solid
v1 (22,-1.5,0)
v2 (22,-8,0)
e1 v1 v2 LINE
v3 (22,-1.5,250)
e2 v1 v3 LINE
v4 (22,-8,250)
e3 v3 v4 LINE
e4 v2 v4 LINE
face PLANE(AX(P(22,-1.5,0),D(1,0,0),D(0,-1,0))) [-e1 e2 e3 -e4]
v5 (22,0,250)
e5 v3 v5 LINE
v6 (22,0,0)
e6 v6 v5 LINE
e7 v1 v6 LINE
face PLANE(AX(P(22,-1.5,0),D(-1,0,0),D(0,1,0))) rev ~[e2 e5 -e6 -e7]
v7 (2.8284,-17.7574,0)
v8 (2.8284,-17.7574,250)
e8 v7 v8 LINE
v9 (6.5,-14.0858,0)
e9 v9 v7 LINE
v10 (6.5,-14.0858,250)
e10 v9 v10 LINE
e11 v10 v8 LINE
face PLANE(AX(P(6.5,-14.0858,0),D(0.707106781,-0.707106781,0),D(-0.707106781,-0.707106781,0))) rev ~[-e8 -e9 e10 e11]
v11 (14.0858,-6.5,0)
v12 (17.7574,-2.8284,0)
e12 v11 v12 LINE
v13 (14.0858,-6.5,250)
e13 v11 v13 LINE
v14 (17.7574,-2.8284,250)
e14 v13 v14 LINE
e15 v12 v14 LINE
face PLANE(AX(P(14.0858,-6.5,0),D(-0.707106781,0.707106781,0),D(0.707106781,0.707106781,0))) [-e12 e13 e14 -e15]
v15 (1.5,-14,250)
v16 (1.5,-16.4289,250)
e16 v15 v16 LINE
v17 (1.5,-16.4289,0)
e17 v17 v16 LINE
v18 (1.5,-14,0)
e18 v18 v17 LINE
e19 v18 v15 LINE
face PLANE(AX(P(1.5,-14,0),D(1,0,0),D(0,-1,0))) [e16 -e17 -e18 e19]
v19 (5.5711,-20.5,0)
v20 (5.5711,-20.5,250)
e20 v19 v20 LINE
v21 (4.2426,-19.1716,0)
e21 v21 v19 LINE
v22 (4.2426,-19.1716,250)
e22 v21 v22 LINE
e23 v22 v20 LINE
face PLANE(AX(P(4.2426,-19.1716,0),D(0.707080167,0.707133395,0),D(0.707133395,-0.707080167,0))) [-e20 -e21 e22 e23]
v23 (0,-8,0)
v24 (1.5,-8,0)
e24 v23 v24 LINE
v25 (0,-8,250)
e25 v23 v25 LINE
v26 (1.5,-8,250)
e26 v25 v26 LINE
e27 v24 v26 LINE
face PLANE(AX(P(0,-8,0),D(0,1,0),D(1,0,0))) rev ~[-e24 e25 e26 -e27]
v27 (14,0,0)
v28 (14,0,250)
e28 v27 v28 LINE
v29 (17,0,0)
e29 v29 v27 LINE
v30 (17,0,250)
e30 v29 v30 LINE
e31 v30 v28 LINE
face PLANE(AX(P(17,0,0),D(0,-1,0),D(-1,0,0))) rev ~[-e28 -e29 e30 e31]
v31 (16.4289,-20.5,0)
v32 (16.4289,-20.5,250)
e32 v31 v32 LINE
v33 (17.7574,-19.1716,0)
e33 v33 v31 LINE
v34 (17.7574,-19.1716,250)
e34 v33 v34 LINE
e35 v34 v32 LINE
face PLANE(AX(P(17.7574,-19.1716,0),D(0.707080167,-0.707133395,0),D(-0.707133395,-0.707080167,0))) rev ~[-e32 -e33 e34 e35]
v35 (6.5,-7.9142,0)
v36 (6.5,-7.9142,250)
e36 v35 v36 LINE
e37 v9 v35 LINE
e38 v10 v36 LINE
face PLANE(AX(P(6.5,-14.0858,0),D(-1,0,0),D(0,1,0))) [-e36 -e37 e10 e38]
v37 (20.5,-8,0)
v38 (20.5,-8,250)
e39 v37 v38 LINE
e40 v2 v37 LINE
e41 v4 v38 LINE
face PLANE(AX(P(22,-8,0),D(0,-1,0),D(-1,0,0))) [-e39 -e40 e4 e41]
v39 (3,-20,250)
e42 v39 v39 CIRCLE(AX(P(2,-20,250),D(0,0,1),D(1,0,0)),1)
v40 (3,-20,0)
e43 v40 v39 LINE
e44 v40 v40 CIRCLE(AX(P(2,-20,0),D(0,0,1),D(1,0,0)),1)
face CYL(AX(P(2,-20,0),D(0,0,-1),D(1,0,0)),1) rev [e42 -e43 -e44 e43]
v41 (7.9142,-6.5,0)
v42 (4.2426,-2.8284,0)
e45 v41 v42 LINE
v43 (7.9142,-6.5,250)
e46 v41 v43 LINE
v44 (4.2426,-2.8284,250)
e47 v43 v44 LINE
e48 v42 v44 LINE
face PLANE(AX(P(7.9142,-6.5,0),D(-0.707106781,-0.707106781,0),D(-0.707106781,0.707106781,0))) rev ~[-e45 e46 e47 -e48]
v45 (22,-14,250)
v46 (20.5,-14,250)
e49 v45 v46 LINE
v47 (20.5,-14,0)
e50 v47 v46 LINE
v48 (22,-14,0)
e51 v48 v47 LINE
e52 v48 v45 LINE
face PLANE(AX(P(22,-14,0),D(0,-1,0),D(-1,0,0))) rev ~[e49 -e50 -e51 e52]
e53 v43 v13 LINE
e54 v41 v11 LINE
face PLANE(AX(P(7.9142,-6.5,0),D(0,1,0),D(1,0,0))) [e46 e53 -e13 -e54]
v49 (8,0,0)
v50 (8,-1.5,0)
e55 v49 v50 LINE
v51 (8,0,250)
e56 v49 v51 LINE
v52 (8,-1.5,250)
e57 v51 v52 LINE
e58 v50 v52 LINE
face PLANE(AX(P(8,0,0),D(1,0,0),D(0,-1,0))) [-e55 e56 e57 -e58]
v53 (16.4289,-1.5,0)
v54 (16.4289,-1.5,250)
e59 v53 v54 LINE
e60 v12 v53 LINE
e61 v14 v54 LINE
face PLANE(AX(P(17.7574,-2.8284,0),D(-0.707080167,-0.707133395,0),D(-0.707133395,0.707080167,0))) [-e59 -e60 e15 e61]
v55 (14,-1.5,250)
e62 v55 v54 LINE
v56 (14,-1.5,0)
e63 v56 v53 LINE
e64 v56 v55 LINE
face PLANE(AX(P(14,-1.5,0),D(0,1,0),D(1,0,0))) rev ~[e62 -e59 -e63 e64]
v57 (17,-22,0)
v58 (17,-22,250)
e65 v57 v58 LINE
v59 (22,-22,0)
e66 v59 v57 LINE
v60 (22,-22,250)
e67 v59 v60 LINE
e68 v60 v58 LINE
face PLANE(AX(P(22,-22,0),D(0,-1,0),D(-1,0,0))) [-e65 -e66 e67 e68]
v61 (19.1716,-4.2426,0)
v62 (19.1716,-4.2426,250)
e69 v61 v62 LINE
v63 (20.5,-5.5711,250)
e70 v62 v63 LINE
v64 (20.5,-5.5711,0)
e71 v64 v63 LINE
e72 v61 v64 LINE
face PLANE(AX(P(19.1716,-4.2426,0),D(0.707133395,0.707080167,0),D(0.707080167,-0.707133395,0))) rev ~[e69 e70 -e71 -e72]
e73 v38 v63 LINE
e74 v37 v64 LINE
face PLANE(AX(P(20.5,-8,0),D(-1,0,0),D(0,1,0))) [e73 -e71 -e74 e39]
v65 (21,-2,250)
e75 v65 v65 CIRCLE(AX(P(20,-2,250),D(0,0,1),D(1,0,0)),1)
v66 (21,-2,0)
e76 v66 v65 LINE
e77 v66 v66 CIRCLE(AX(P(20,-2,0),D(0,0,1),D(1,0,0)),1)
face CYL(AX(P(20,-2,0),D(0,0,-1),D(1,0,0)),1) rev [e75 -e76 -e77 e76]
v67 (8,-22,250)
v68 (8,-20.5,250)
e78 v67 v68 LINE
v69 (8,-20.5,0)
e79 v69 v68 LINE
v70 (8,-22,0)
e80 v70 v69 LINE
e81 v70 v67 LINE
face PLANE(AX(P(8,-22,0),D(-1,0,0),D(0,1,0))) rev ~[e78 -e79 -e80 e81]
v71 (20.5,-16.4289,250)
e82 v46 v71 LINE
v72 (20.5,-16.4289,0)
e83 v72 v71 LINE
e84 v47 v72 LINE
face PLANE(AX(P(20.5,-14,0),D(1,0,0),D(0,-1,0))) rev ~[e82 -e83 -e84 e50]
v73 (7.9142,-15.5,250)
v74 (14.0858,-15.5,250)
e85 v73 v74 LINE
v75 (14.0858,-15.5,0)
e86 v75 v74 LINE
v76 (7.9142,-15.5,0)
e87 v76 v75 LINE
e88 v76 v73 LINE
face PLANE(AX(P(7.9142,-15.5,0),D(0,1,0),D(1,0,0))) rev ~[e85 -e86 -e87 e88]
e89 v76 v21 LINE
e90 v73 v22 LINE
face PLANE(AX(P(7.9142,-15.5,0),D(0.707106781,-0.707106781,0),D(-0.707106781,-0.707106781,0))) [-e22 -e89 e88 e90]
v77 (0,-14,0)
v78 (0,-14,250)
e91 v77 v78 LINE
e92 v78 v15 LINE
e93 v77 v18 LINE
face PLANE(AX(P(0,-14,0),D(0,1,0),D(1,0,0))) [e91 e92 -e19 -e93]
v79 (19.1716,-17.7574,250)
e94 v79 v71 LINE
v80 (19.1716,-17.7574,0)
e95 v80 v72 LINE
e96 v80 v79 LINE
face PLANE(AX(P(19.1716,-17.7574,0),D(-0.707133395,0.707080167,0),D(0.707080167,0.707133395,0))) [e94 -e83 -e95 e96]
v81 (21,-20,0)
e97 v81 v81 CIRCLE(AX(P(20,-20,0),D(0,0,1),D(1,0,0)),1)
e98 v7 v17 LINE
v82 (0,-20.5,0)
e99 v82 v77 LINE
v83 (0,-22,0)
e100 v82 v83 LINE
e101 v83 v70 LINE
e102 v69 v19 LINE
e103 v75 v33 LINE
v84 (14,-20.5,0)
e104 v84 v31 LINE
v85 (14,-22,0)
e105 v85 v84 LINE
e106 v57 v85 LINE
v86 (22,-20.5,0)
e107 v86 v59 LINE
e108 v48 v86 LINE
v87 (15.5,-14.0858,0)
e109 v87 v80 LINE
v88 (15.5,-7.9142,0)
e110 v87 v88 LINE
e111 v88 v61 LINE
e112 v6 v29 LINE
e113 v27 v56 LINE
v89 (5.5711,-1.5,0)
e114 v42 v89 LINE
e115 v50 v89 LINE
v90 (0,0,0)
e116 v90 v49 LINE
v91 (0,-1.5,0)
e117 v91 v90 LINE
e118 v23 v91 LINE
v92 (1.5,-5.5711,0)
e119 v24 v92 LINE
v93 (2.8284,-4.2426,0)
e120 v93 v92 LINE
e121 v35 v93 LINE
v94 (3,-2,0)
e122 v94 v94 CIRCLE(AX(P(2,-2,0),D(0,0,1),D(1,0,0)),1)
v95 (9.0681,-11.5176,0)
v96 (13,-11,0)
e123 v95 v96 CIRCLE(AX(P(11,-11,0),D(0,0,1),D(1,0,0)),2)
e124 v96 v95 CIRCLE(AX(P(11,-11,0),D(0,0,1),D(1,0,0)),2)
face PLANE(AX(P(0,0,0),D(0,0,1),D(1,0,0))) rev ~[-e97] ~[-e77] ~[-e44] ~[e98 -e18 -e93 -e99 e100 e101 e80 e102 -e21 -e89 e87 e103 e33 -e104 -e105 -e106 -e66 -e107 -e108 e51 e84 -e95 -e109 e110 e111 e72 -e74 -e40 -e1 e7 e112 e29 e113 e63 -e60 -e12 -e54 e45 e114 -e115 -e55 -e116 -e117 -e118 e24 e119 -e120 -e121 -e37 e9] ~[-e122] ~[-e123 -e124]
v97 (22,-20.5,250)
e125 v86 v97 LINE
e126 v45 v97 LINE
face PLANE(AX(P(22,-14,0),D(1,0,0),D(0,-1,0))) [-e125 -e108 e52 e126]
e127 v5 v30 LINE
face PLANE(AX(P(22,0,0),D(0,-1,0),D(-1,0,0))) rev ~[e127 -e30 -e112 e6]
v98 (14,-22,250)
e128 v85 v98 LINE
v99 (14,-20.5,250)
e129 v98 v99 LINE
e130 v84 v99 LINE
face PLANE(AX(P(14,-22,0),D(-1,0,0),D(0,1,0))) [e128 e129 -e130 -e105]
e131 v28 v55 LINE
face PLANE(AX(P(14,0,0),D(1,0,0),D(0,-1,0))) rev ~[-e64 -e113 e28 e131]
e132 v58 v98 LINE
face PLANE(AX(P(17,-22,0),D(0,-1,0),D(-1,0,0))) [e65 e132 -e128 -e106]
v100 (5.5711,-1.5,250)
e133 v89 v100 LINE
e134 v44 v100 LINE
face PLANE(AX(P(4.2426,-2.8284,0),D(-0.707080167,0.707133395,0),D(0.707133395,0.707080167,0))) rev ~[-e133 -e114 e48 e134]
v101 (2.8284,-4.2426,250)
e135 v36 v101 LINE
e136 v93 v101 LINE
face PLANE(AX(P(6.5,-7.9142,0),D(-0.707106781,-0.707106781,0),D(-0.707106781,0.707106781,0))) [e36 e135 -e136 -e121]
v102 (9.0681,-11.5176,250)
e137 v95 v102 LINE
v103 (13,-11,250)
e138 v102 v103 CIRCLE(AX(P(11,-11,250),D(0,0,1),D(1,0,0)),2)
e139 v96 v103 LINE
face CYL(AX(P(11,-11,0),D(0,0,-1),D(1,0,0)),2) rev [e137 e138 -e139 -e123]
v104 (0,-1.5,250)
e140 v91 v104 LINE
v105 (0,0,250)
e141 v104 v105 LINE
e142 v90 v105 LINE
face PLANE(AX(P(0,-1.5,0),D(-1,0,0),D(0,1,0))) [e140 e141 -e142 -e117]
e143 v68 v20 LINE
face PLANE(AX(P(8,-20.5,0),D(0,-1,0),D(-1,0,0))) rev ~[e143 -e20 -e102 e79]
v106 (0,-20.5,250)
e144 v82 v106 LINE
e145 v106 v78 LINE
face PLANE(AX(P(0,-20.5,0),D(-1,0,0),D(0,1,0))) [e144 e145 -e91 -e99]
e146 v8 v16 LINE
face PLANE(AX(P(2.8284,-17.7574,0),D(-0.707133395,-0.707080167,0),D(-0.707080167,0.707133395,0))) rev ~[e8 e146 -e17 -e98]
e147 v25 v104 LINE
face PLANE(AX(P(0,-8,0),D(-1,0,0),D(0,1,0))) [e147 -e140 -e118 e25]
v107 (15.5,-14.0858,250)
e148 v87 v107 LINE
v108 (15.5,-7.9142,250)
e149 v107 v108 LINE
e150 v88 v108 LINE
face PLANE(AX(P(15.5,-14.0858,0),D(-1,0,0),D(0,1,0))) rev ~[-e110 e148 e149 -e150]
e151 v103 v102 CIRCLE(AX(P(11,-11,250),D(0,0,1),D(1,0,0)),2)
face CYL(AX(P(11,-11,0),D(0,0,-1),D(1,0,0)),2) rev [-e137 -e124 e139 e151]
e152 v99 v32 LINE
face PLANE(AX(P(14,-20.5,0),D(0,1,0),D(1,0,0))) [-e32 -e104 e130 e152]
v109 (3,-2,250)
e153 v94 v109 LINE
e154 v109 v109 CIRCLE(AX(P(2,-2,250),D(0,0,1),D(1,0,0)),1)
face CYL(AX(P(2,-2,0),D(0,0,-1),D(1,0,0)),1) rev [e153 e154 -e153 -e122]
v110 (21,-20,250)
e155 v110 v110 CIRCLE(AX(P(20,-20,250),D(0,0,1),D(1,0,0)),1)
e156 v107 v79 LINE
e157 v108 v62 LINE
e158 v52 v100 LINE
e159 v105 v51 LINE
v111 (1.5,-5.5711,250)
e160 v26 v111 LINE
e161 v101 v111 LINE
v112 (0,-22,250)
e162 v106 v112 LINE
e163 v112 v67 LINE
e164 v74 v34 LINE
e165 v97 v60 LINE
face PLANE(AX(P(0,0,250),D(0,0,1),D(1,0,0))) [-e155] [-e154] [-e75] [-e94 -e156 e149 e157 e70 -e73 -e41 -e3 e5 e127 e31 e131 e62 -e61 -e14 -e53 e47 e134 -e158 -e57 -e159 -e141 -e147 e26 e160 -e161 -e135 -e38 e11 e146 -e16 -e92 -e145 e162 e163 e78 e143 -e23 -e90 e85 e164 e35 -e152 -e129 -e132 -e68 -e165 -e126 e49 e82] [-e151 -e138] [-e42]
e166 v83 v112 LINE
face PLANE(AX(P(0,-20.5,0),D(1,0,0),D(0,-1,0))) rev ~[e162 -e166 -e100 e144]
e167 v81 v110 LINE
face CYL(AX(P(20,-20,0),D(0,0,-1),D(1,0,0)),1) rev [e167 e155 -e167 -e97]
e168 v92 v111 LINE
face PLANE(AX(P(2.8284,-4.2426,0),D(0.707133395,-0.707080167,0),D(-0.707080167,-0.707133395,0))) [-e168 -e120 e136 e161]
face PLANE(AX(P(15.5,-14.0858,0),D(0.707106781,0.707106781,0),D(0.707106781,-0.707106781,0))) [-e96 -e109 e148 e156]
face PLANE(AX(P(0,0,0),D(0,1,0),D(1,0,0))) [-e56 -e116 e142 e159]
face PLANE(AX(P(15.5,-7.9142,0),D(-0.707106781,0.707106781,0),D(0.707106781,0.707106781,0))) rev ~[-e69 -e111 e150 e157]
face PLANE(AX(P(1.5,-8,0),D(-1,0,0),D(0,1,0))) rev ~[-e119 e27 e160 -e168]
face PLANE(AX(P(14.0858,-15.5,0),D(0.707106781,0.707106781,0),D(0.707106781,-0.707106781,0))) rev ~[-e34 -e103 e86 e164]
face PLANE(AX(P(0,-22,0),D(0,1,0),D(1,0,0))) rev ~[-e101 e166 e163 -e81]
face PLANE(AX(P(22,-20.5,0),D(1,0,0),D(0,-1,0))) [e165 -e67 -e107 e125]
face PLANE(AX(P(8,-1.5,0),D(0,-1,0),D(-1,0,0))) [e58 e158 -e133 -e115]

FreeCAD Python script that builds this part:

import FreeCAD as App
import Part
import Sketcher
Q = App.Units.Quantity


def add_polygon(sketch, points):
    """Adds a closed chain of lines whose ends are joined by coincident constraints."""
    first, n = sketch.GeometryCount, len(points)
    for a, b in zip(points, points[1:] + points[:1]):
        sketch.addGeometry(Part.LineSegment(App.Vector(*a, 0), App.Vector(*b, 0)), False)
    for i in range(n):
        sketch.addConstraint(Sketcher.Constraint("Coincident", first + i, 2, first + (i + 1) % n, 1))

doc = App.newDocument("Part")
params = doc.addObject("Spreadsheet::Sheet", "Params")
for row, (alias, value) in enumerate([
    ("sketch1_diameter", "2 mm"),
    ("sketch1_diameter2", "4 mm"),
    ("sketch1_width", "8 mm"),
    ("sketch1_width2", "1.5 mm"),
    ("pad1_length", "250 mm"),
], start=1):
    params.set(f"A{row}", alias)
    params.set(f"B{row}", "=" + value)
    params.setAlias(f"B{row}", alias)

body = doc.addObject("PartDesign::Body", "Body")

# Sketch on XY plane
sketch1 = body.newObject("Sketcher::SketchObject", "Sketch")
sketch1.AttachmentSupport = (doc.getObject("XY_Plane"), [""])
sketch1.MapMode = "FlatFace"
add_polygon(sketch1, [(8, 0), (0, 0), (0, -8), (1.5, -8), (1.5, -5.5711), (2.8284, -4.2426), (6.5, -7.9142), (6.5, -14.0858), (2.8284, -17.7574), (1.5, -16.4289), (1.5, -14), (0, -14), (0, -22), (8, -22), (8, -20.5), (5.5711, -20.5), (4.2426, -19.1716), (7.9142, -15.5), (14.0858, -15.5), (17.7574, -19.1716), (16.4289, -20.5), (14, -20.5), (14, -22), (22, -22), (22, -14), (20.5, -14), (20.5, -16.4289), (19.1716, -17.7574), (15.5, -14.0858), (15.5, -7.9142), (19.1716, -4.2426), (20.5, -5.5711), (20.5, -8), (22, -8), (22, 0), (14, 0), (14, -1.5), (16.4289, -1.5), (17.7574, -2.8284), (14.0858, -6.5), (7.9142, -6.5), (4.2426, -2.8284), (5.5711, -1.5), (8, -1.5)])  # lines 0-43
sketch1.addGeometry(Part.Circle(App.Vector(2, -20, 0), App.Vector(0, 0, 1), 1), False)  # 44
sketch1.addGeometry(Part.Circle(App.Vector(20, -20, 0), App.Vector(0, 0, 1), 1), False)  # 45
sketch1.addGeometry(Part.Circle(App.Vector(2, -2, 0), App.Vector(0, 0, 1), 1), False)  # 46
sketch1.addGeometry(Part.Circle(App.Vector(11, -11, 0), App.Vector(0, 0, 1), 2), False)  # 47
sketch1.addGeometry(Part.Circle(App.Vector(20, -2, 0), App.Vector(0, 0, 1), 1), False)  # 48
sketch1.addConstraint([
    Sketcher.Constraint("Horizontal", 0),
    Sketcher.Constraint("Vertical", 1),
    Sketcher.Constraint("Horizontal", 2),
    Sketcher.Constraint("Vertical", 3),
    Sketcher.Constraint("Vertical", 6),
    Sketcher.Constraint("Vertical", 9),
    Sketcher.Constraint("Horizontal", 10),
    Sketcher.Constraint("Vertical", 11),
    Sketcher.Constraint("Horizontal", 12),
    Sketcher.Constraint("Vertical", 13),
    Sketcher.Constraint("Horizontal", 14),
    Sketcher.Constraint("Horizontal", 17),
    Sketcher.Constraint("Horizontal", 20),
    Sketcher.Constraint("Vertical", 21),
    Sketcher.Constraint("Horizontal", 22),
    Sketcher.Constraint("Vertical", 23),
    Sketcher.Constraint("Horizontal", 24),
    Sketcher.Constraint("Vertical", 25),
    Sketcher.Constraint("Vertical", 28),
    Sketcher.Constraint("Vertical", 31),
    Sketcher.Constraint("Horizontal", 32),
    Sketcher.Constraint("Vertical", 33),
    Sketcher.Constraint("Horizontal", 34),
    Sketcher.Constraint("Vertical", 35),
    Sketcher.Constraint("Horizontal", 36),
    Sketcher.Constraint("Horizontal", 39),
    Sketcher.Constraint("Horizontal", 42),
    Sketcher.Constraint("Vertical", 43),
    Sketcher.Constraint("Coincident", 0, 2, -1, 1),
    Sketcher.Constraint("Equal", 44, 45),
    Sketcher.Constraint("Equal", 45, 46),
    Sketcher.Constraint("Equal", 46, 48),
    Sketcher.Constraint("PointOnObject", 10, 2, -2),
    Sketcher.Constraint("PointOnObject", 33, 2, -1),
    Sketcher.Constraint("Perpendicular", 4, 5),
    Sketcher.Constraint("Perpendicular", 5, 7),
    Sketcher.Constraint("Perpendicular", 7, 8),
    Sketcher.Constraint("Parallel", 8, 15),
    Sketcher.Constraint("Perpendicular", 15, 16),
    Sketcher.Constraint("Perpendicular", 16, 18),
    Sketcher.Constraint("Perpendicular", 18, 19),
    Sketcher.Constraint("Parallel", 19, 26),
    Sketcher.Constraint("Perpendicular", 26, 27),
    Sketcher.Constraint("Perpendicular", 27, 29),
    Sketcher.Constraint("Perpendicular", 29, 30),
    Sketcher.Constraint("Parallel", 30, 37),
    Sketcher.Constraint("Perpendicular", 37, 38),
    Sketcher.Constraint("Perpendicular", 38, 40),
    Sketcher.Constraint("Perpendicular", 40, 41),
    Sketcher.Constraint("Horizontal", 44, 3, 45, 3),
    Sketcher.Constraint("Horizontal", 46, 3, 48, 3),
    Sketcher.Constraint("Horizontal", 15, 2, 18, 2),
    Sketcher.Constraint("Horizontal", 14, 2, 19, 2),
    Sketcher.Constraint("Horizontal", 12, 2, 21, 2),
    Sketcher.Constraint("Horizontal", 10, 2, 23, 2),
    Sketcher.Constraint("Horizontal", 8, 2, 25, 2),
    Sketcher.Constraint("Horizontal", 7, 2, 26, 2),
    Sketcher.Constraint("Horizontal", 6, 2, 27, 2),
    Sketcher.Constraint("Horizontal", 5, 2, 28, 2),
    Sketcher.Constraint("Horizontal", 4, 2, 29, 2),
    Sketcher.Constraint("Horizontal", 3, 2, 30, 2),
    Sketcher.Constraint("Horizontal", 2, 2, 31, 2),
    Sketcher.Constraint("Horizontal", 37, 2, 40, 2),
    Sketcher.Constraint("Horizontal", 36, 2, 41, 2),
    Sketcher.Constraint("Vertical", 44, 3, 46, 3),
    Sketcher.Constraint("Vertical", 45, 3, 48, 3),
    Sketcher.Constraint("Vertical", 4, 2, 7, 2),
    Sketcher.Constraint("Vertical", 3, 2, 8, 2),
    Sketcher.Constraint("Vertical", 26, 2, 29, 2),
    Sketcher.Constraint("Vertical", 23, 2, 32, 2),
    Sketcher.Constraint("Vertical", 21, 2, 34, 2),
    Sketcher.Constraint("Vertical", 19, 2, 36, 2),
    Sketcher.Constraint("Vertical", 18, 2, 37, 2),
    Sketcher.Constraint("Vertical", 17, 2, 38, 2),
    Sketcher.Constraint("Vertical", 16, 2, 39, 2),
    Sketcher.Constraint("Vertical", 13, 2, 42, 2),
    Sketcher.Constraint("Equal", 14, 20),
    Sketcher.Constraint("Equal", 12, 22),
    Sketcher.Constraint("Equal", 10, 24),
    Sketcher.Constraint("Equal", 34, 1),
    Sketcher.Constraint("Equal", 42, 3),
    Sketcher.Constraint("Equal", 39, 6),
    Sketcher.Constraint("Equal", 3, 9),
    Sketcher.Constraint("Equal", 1, 11),
    Sketcher.Constraint("Equal", 32, 13),
    Sketcher.Constraint("Equal", 21, 35),
    Sketcher.Constraint("Equal", 8, 15),
    Sketcher.Constraint("Equal", 7, 16),
    Sketcher.Constraint("Diameter", 44, Q("2 mm")),
    Sketcher.Constraint("Diameter", 47, Q("4 mm")),
    Sketcher.Constraint("DistanceX", 0, 2, 0, 1, Q("8 mm")),
    Sketcher.Constraint("DistanceX", 2, 1, 2, 2, Q("1.5 mm")),
    Sketcher.Constraint("DistanceX", -1, 1, 44, 3, Q("2 mm")),
    Sketcher.Constraint("DistanceY", 46, 3, -1, 1, Q("2 mm")),
    Sketcher.Constraint("DistanceX", 44, 3, 47, 3, Q("9 mm")),
    Sketcher.Constraint("DistanceY", 44, 3, 47, 3, Q("9 mm")),
    Sketcher.Constraint("DistanceX", 47, 3, 45, 3, Q("9 mm")),
    Sketcher.Constraint("DistanceY", 47, 3, 46, 3, Q("9 mm")),
    Sketcher.Constraint("DistanceX", 2, 2, 5, 2, Q("5 mm")),
    Sketcher.Constraint("DistanceY", 11, 2, 44, 3, Q("2 mm")),
    Sketcher.Constraint("DistanceX", 14, 2, 14, 1, Q("2.429 mm")),
    Sketcher.Constraint("DistanceX", 17, 1, 17, 2, Q("6.1716 mm")),
])
sketch1.setExpression("Constraints[132]", "Params.sketch1_diameter")
sketch1.setExpression("Constraints[133]", "Params.sketch1_diameter2")
sketch1.setExpression("Constraints[134]", "Params.sketch1_width")
sketch1.setExpression("Constraints[135]", "Params.sketch1_width2")
pad1 = body.newObject("PartDesign::Pad", "Pad")
pad1.Profile = sketch1
pad1.setExpression("Length", "Params.pad1_length")

doc.recompute()
